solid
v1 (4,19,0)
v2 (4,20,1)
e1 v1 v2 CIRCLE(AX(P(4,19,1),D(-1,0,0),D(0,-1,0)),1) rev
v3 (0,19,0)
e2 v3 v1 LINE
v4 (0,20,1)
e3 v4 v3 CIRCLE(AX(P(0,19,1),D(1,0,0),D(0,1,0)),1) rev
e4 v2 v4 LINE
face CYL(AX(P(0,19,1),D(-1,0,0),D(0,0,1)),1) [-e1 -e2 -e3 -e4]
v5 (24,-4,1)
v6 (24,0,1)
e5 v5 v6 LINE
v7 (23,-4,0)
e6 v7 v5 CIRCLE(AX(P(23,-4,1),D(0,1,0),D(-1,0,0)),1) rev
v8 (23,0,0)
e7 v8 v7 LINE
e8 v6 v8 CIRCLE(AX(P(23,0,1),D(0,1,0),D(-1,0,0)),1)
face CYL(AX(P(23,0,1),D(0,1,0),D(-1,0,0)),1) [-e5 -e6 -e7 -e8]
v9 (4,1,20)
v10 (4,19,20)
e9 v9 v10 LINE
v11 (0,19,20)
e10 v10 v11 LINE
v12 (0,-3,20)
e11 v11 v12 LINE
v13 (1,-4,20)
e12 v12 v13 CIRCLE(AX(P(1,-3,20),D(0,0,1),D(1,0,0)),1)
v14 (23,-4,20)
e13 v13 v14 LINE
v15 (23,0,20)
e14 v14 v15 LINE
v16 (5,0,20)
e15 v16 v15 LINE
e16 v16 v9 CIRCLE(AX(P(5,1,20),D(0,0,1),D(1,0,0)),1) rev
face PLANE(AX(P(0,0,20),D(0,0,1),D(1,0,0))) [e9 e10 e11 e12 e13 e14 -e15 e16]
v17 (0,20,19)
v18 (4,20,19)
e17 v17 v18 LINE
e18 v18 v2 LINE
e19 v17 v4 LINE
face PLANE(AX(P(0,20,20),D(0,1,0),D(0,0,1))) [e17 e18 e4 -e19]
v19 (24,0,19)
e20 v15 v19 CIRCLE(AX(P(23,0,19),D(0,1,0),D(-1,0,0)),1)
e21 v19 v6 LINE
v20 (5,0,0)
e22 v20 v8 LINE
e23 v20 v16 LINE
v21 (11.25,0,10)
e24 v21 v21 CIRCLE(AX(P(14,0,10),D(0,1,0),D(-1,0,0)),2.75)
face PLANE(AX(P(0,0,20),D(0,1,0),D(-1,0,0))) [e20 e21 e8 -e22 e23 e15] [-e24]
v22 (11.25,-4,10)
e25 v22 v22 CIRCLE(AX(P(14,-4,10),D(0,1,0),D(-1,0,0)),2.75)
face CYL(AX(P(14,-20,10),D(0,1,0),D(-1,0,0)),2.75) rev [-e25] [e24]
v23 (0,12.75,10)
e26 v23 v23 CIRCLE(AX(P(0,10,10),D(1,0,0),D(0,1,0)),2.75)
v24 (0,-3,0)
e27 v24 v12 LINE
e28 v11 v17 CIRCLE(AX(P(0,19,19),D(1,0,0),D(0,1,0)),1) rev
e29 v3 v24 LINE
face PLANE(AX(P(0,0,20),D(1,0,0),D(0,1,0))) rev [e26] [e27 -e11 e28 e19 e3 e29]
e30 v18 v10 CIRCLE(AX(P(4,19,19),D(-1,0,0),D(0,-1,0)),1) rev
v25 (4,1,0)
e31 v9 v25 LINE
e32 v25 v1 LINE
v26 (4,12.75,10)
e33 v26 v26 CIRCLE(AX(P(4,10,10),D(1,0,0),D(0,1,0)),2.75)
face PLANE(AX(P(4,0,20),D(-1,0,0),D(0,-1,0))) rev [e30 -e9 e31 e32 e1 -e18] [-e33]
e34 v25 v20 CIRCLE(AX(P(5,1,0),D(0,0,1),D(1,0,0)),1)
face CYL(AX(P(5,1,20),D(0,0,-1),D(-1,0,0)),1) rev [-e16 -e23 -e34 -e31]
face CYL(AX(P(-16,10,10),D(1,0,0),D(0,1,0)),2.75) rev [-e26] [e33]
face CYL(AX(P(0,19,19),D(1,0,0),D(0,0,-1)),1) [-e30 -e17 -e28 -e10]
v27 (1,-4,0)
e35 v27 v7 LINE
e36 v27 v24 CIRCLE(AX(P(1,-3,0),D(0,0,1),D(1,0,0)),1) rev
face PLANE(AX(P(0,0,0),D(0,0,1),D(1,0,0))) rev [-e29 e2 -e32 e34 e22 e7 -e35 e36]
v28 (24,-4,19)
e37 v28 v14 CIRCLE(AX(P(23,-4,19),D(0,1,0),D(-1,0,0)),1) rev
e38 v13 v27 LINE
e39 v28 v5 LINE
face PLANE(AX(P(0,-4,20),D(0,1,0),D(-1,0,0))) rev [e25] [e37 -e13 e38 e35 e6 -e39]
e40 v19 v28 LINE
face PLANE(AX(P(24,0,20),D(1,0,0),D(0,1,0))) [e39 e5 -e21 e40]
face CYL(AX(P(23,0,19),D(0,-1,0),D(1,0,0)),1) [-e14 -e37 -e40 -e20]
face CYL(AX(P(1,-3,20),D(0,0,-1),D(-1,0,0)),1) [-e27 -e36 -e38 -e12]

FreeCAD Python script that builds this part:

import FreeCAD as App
import Part
import Sketcher
from FreeCAD import Vector


def edges_at(feature, points):
    """Names of the edges that pass closest to the given points."""
    edges = feature.Shape.Edges
    near = lambda p: min(range(len(edges)), key=lambda i: edges[i].distToShape(Part.Vertex(*p))[0])
    return sorted({f"Edge{near(p) + 1}" for p in points})


def add_polygon(sketch, points):
    """Adds a closed chain of lines whose ends are joined by coincident constraints."""
    first, n = sketch.GeometryCount, len(points)
    for a, b in zip(points, points[1:] + points[:1]):
        sketch.addGeometry(Part.LineSegment(App.Vector(*a, 0), App.Vector(*b, 0)), False)
    for i in range(n):
        sketch.addConstraint(Sketcher.Constraint("Coincident", first + i, 2, first + (i + 1) % n, 1))

doc = App.newDocument("Part")
body = doc.addObject("PartDesign::Body", "Body")

sketch1 = body.newObject("Sketcher::SketchObject", "Sketch")
sketch1.AttachmentSupport = (doc.getObject("XY_Plane"), [""])
sketch1.MapMode = "FlatFace"
add_polygon(sketch1, [(0, -4), (24, -4), (24, 0), (4, 0), (4, 20), (0, 20)])
sketch1.addConstraint([
    Sketcher.Constraint("Horizontal", 0),
    Sketcher.Constraint("Vertical", 1),
    Sketcher.Constraint("Horizontal", 2),
    Sketcher.Constraint("Vertical", 3),
    Sketcher.Constraint("Horizontal", 4),
    Sketcher.Constraint("Vertical", 5),
    Sketcher.Constraint("PointOnObject", 1, 2, -1),
    Sketcher.Constraint("PointOnObject", 4, 2, -2),
    Sketcher.Constraint("Equal", 4, 1),
    Sketcher.Constraint("Equal", 2, 3),
    Sketcher.Constraint("DistanceX", 0, 1, 0, 2, 24.0),
    Sketcher.Constraint("DistanceX", 2, 2, 2, 1, 20.0),
])
pad1 = body.newObject("PartDesign::Pad", "Pad")
pad1.Profile = sketch1
pad1.Length = 20

sketch2 = body.newObject("Sketcher::SketchObject", "Sketch001")
sketch2.AttachmentSupport = (doc.getObject("XZ_Plane"), [""])
sketch2.MapMode = "FlatFace"
sketch2.addGeometry(Part.Circle(Vector(14, 10, 0), Vector(0, 0, 1), 2.8), False)
sketch2.addConstraint([
    Sketcher.Constraint("Diameter", 0, 5.5),
    Sketcher.Constraint("DistanceX", -1, 1, 0, 3, 14.0),
    Sketcher.Constraint("DistanceY", -1, 1, 0, 3, 10.0),
])
pocket1 = body.newObject("PartDesign::Pocket", "Pocket")
pocket1.Profile = sketch2
pocket1.Length = 20
pocket1.Reversed = True

sketch3 = body.newObject("Sketcher::SketchObject", "Sketch002")
sketch3.AttachmentSupport = (doc.getObject("YZ_Plane"), [""])
sketch3.MapMode = "FlatFace"
sketch3.AttachmentOffset = App.Placement(Vector(0, 0, 4), App.Rotation())
sketch3.addGeometry(Part.Circle(Vector(10, 10, 0), Vector(0, 0, 1), 2.8), False)
sketch3.addConstraint([
    Sketcher.Constraint("Diameter", 0, 5.5),
    Sketcher.Constraint("DistanceX", -1, 1, 0, 3, 10.0),
    Sketcher.Constraint("DistanceY", -1, 1, 0, 3, 10.0),
])
pocket2 = body.newObject("PartDesign::Pocket", "Pocket001")
pocket2.Profile = sketch3
pocket2.Length = 20
doc.recompute()

fillet = body.newObject("PartDesign::Fillet", "Fillet")
fillet.Base = (pocket2, edges_at(pocket2, [
    (24, -2, 0),
    (0, -4, 10),
    (4, 0, 10),
    (2, 20, 20),
    (24, -2, 20),
    (2, 20, 0),
]))
fillet.Radius = 1

doc.recompute()
